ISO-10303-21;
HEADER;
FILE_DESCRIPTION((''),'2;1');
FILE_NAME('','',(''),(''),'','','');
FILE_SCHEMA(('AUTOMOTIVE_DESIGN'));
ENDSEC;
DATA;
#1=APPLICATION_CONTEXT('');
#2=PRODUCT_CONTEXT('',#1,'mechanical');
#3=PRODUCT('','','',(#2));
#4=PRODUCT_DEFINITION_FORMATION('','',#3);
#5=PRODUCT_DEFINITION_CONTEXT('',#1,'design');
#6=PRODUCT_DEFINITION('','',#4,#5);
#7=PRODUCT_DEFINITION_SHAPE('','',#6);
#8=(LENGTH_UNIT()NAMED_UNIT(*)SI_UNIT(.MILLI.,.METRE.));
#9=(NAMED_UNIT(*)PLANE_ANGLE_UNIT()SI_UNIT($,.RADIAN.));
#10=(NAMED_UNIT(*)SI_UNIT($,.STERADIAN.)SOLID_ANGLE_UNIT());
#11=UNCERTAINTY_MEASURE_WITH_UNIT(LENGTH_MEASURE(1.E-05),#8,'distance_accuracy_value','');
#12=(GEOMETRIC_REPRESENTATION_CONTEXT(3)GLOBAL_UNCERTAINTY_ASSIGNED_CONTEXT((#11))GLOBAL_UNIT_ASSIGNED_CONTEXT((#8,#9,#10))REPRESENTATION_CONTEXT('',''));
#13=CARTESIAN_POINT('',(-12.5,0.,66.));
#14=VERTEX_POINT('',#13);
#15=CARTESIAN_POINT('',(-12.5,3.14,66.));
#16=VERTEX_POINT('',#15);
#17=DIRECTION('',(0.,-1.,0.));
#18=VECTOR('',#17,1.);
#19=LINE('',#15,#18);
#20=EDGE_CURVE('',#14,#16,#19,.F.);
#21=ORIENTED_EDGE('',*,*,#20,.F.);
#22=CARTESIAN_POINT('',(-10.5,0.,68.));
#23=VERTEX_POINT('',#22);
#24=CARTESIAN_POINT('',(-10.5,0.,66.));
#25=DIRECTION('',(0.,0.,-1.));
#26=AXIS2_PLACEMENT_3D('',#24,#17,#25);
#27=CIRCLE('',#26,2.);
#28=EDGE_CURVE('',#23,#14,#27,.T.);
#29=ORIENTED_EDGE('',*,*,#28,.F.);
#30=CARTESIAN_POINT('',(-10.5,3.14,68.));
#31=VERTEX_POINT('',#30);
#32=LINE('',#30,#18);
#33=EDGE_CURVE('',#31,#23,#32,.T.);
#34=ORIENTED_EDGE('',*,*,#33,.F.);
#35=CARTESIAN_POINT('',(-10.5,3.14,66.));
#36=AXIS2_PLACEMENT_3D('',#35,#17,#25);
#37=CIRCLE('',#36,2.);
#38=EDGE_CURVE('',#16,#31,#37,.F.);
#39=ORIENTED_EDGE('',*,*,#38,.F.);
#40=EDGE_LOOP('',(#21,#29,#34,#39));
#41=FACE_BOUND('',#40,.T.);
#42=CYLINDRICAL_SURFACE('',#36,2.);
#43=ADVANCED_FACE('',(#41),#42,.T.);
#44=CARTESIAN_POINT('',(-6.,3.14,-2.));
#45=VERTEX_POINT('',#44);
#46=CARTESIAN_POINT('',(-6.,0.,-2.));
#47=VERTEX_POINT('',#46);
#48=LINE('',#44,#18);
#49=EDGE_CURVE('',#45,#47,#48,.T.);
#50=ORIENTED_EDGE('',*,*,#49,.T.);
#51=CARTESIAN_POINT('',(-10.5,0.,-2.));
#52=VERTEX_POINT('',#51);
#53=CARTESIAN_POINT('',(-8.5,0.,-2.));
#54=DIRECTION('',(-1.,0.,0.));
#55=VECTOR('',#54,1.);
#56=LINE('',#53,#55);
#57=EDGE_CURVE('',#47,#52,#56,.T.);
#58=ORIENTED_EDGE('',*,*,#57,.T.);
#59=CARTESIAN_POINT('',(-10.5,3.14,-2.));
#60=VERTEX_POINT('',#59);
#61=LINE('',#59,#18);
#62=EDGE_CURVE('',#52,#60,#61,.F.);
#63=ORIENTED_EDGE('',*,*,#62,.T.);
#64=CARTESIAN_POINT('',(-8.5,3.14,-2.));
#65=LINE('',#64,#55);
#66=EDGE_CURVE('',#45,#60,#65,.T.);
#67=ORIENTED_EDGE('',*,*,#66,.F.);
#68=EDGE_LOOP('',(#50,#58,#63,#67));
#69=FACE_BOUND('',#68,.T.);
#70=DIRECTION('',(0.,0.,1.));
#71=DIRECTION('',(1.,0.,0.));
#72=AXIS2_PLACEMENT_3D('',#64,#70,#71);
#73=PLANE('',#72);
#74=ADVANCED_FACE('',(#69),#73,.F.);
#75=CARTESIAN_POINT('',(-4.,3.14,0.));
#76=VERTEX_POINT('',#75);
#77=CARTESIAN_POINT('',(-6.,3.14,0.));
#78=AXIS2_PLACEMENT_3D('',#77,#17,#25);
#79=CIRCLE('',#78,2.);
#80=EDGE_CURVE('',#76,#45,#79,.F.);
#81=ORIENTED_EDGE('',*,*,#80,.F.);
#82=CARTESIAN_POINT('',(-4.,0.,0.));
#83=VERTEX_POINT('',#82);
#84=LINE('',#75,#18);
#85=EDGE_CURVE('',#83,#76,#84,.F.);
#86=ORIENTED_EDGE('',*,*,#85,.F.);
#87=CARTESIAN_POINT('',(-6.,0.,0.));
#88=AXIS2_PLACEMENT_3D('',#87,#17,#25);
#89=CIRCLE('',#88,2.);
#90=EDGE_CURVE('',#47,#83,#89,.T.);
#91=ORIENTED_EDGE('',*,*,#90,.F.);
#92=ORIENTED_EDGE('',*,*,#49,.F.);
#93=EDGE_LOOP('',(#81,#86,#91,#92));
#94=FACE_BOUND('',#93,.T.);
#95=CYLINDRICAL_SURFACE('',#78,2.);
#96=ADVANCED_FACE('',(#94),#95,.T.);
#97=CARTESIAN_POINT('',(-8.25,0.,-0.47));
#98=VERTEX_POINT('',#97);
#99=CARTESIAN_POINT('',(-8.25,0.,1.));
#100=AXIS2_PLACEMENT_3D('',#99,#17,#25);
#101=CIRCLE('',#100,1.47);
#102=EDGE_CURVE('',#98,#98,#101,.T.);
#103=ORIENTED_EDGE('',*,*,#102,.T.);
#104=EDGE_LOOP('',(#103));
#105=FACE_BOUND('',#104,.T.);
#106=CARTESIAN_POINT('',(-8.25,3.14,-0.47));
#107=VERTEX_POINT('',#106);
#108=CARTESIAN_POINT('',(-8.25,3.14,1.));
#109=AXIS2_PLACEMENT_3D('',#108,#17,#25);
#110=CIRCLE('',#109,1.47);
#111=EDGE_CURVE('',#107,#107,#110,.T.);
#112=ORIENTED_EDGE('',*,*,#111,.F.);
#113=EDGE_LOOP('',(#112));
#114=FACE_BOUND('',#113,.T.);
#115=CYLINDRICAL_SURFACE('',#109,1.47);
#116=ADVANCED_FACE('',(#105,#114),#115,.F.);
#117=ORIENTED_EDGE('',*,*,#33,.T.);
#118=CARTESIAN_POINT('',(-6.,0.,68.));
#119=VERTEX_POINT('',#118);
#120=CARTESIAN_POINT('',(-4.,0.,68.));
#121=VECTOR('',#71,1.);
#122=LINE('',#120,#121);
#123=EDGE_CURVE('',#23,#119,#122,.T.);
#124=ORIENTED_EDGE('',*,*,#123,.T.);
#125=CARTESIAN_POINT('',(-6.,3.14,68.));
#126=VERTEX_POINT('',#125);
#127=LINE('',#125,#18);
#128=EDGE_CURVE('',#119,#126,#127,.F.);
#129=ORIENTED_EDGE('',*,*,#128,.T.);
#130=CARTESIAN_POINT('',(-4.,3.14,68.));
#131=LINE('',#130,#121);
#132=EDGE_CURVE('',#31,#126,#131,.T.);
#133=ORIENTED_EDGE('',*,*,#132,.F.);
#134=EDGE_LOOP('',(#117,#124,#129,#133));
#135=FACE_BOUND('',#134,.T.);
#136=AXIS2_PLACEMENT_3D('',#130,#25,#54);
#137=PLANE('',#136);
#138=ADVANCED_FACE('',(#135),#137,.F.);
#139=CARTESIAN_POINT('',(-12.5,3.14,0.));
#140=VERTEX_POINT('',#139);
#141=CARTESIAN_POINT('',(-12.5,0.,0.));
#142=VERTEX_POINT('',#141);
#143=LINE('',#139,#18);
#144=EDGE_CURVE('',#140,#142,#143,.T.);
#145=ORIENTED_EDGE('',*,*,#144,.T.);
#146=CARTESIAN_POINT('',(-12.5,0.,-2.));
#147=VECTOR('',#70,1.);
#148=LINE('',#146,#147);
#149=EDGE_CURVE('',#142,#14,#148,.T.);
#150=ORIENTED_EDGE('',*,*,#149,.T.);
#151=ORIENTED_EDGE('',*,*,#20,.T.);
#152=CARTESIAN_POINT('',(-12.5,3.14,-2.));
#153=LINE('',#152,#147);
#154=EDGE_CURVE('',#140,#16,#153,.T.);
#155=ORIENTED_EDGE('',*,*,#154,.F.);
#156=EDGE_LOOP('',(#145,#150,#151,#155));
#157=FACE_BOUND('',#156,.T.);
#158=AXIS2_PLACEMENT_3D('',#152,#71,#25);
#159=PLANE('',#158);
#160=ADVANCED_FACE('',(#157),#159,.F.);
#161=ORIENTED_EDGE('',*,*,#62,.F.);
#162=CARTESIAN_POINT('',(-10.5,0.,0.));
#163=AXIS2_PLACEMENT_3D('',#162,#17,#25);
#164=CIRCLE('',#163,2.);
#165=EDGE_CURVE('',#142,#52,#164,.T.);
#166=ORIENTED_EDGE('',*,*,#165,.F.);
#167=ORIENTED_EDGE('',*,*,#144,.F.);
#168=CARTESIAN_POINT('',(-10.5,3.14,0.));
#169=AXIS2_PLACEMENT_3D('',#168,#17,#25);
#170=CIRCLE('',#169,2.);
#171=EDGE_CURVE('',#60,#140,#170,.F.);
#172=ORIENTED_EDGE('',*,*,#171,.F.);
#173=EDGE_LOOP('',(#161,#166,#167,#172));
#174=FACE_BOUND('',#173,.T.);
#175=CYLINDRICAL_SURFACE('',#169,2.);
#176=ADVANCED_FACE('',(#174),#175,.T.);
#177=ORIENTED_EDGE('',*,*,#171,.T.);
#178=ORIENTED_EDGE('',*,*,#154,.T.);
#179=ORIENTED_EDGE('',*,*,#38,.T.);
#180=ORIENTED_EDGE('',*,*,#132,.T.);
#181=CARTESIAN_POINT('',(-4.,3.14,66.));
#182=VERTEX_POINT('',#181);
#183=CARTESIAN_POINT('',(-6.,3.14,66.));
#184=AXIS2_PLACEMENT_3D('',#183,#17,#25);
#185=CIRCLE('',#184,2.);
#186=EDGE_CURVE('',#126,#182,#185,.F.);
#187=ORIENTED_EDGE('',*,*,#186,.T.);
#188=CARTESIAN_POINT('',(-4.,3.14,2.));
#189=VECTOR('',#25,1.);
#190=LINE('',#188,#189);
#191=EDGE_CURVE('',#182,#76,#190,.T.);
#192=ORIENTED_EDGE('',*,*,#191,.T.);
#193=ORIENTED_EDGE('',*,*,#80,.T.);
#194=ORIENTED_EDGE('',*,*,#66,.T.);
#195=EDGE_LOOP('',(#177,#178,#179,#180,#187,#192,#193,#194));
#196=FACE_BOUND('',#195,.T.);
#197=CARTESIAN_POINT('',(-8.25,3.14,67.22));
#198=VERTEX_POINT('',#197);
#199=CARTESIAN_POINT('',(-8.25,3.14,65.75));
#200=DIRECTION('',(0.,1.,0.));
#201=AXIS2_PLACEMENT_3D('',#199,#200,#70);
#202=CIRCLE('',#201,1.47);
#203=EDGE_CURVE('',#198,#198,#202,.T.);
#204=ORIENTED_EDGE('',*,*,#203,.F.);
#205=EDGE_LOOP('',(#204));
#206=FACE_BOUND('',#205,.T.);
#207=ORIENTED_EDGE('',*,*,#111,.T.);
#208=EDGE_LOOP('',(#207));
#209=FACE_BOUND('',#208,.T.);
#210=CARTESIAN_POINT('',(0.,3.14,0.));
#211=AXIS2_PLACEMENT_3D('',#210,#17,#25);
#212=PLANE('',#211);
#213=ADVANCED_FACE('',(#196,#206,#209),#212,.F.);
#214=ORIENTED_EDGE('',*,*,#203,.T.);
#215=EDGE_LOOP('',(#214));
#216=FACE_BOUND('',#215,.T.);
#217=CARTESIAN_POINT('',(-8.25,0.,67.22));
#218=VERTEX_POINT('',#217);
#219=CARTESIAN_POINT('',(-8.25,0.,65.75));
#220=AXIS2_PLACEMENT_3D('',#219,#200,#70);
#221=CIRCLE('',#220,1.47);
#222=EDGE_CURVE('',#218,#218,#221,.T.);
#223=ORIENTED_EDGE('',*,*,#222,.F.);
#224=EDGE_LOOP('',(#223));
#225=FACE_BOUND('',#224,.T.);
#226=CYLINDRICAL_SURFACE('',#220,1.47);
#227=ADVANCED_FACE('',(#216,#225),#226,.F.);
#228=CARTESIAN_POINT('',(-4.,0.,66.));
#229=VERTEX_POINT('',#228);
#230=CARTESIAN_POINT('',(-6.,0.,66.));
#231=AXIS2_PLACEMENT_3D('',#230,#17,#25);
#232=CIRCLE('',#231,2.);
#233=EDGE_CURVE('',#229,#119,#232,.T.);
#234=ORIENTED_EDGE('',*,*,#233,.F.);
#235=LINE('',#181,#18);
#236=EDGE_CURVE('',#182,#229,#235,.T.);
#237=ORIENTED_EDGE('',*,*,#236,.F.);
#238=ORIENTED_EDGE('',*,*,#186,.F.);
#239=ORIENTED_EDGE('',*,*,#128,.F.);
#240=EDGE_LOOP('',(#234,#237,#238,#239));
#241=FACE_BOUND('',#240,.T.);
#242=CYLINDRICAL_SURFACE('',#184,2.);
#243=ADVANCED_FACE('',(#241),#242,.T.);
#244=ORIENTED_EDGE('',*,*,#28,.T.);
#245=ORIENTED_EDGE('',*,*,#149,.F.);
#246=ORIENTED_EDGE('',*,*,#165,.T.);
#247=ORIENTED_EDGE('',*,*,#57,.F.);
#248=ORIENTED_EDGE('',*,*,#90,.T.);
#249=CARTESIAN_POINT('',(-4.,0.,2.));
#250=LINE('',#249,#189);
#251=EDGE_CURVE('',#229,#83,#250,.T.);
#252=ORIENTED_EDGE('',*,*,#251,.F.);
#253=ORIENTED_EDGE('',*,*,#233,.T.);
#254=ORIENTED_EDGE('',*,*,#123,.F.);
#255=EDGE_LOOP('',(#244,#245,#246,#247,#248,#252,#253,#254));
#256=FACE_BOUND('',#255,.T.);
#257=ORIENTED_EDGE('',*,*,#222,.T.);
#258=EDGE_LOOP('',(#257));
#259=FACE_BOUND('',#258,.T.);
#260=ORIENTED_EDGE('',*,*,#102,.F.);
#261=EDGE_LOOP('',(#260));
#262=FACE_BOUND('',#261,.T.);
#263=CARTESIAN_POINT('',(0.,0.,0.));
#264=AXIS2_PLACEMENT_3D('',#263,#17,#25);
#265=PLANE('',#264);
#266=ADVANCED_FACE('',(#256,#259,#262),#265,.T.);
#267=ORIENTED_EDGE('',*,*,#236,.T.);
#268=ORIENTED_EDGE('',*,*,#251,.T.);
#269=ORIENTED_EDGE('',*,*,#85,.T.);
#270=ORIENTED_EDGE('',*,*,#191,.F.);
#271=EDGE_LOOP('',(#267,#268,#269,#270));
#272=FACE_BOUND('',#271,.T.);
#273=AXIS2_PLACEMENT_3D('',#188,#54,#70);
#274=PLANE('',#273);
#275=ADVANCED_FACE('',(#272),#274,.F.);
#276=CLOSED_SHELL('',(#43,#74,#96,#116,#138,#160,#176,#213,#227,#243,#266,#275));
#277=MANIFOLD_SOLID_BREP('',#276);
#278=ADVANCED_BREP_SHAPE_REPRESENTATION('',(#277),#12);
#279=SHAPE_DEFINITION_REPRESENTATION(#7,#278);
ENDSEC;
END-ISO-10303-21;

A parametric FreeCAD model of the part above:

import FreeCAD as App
import Part
import Sketcher

V = App.Vector
Q = App.Units.Quantity


def edges_at(feature, points):
    """Names of the edges that pass closest to the given points."""
    edges = feature.Shape.Edges
    near = lambda p: min(range(len(edges)), key=lambda i: edges[i].distToShape(Part.Vertex(*p))[0])
    return sorted({f"Edge{near(p) + 1}" for p in points})


def add_polygon(sketch, points):
    """Adds a closed chain of lines whose ends are joined by coincident constraints."""
    first, n = sketch.GeometryCount, len(points)
    for a, b in zip(points, points[1:] + points[:1]):
        sketch.addGeometry(Part.LineSegment(App.Vector(*a, 0), App.Vector(*b, 0)), False)
    for i in range(n):
        sketch.addConstraint(Sketcher.Constraint("Coincident", first + i, 2, first + (i + 1) % n, 1))

doc = App.newDocument("Part")
body = doc.addObject("PartDesign::Body", "Body")

# Sketch on XZ plane
sketch1 = body.newObject("Sketcher::SketchObject", "Sketch")
sketch1.AttachmentSupport = (doc.getObject("XZ_Plane"), [""])
sketch1.MapMode = "FlatFace"
add_polygon(sketch1, [(12.5, 2), (12.5, -2), (-12.5, -2), (-12.5, 68), (-4, 68), (-4, 2)])  # lines 0-5
sketch1.addConstraint(Sketcher.Constraint("Vertical", 0))
sketch1.addConstraint(Sketcher.Constraint("Horizontal", 1))
sketch1.addConstraint(Sketcher.Constraint("Vertical", 2))
sketch1.addConstraint(Sketcher.Constraint("Horizontal", 3))
sketch1.addConstraint(Sketcher.Constraint("Vertical", 4))
sketch1.addConstraint(Sketcher.Constraint("Horizontal", 5))
sketch1.addConstraint(Sketcher.Constraint("Symmetric", 1, 2, 5, 2, -1, 1))
sketch1.addConstraint(Sketcher.Constraint("DistanceX", 1, 2, 1, 1, Q("25 mm")))
sketch1.addConstraint(Sketcher.Constraint("DistanceY", 0, 2, 0, 1, Q("4 mm")))
sketch1.addConstraint(Sketcher.Constraint("DistanceY", 2, 1, 2, 2, Q("70 mm")))
sketch1.addConstraint(Sketcher.Constraint("DistanceX", 3, 1, 3, 2, Q("8.5 mm")))
pad1 = body.newObject("PartDesign::Pad", "Pad")
pad1.Profile = sketch1
pad1.Length = 3.14
pad1.Reversed = True

# Sketch on XZ plane
sketch2 = body.newObject("Sketcher::SketchObject", "Sketch001")
sketch2.AttachmentSupport = (doc.getObject("XZ_Plane"), [""])
sketch2.MapMode = "FlatFace"
sketch2.AttachmentOffset = App.Placement(V(0, 0, -3.14), App.Rotation())
sketch2.addGeometry(Part.Circle(V(-8.2, 65.8, 0), V(0, 0, 1), 1.5), False)
sketch2.addConstraint(Sketcher.Constraint("Diameter", 0, Q("2.94 mm")))
sketch2.addConstraint(Sketcher.Constraint("DistanceX", 0, 3, -1, 1, Q("8.25 mm")))
sketch2.addConstraint(Sketcher.Constraint("DistanceY", -1, 1, 0, 3, Q("65.75 mm")))
pocket1 = body.newObject("PartDesign::Pocket", "Pocket")
pocket1.Profile = sketch2
pocket1.Type = "ThroughAll"
pocket1.Reversed = True

# Sketch on XZ plane
sketch3 = body.newObject("Sketcher::SketchObject", "Sketch002")
sketch3.AttachmentSupport = (doc.getObject("XZ_Plane"), [""])
sketch3.MapMode = "FlatFace"
add_polygon(sketch3, [(-4, 2), (-4, -2), (12.5, -2), (12.5, 2)])  # lines 0-3
sketch3.addConstraint(Sketcher.Constraint("Vertical", 0))
sketch3.addConstraint(Sketcher.Constraint("Horizontal", 1))
sketch3.addConstraint(Sketcher.Constraint("Vertical", 2))
sketch3.addConstraint(Sketcher.Constraint("Horizontal", 3))
sketch3.addConstraint(Sketcher.Constraint("DistanceY", 0, 2, 0, 1, Q("4 mm")))
sketch3.addConstraint(Sketcher.Constraint("DistanceX", 1, 1, 1, 2, Q("16.5 mm")))
sketch3.addConstraint(Sketcher.Constraint("DistanceX", 0, 2, -1, 1, Q("4 mm")))
sketch3.addConstraint(Sketcher.Constraint("DistanceY", 0, 2, -1, 1, Q("2 mm")))
pocket2 = body.newObject("PartDesign::Pocket", "Pocket001")
pocket2.Profile = sketch3
pocket2.Type = "ThroughAll"
doc.recompute()

fillet = body.newObject("PartDesign::Fillet", "Fillet")
fillet.Base = (pocket2, edges_at(pocket2, [
    (-4, 1.57, 68),
    (-12.5, 1.57, 68),
    (-12.5, 1.57, -2),
    (-4, 1.57, -2),
]))
fillet.Radius = 2

# Sketch on XZ plane
sketch4 = body.newObject("Sketcher::SketchObject", "Sketch003")
sketch4.AttachmentSupport = (doc.getObject("XZ_Plane"), [""])
sketch4.MapMode = "FlatFace"
sketch4.addGeometry(Part.Circle(V(-8.2, 1, 0), V(0, 0, 1), 1.5), False)
sketch4.addConstraint(Sketcher.Constraint("Diameter", 0, Q("2.94 mm")))
sketch4.addConstraint(Sketcher.Constraint("DistanceY", -1, 1, 0, 3, Q("1 mm")))
sketch4.addConstraint(Sketcher.Constraint("DistanceX", 0, 3, -1, 1, Q("8.25 mm")))
pocket3 = body.newObject("PartDesign::Pocket", "Pocket002")
pocket3.Profile = sketch4
pocket3.Type = "ThroughAll"

doc.recompute()
